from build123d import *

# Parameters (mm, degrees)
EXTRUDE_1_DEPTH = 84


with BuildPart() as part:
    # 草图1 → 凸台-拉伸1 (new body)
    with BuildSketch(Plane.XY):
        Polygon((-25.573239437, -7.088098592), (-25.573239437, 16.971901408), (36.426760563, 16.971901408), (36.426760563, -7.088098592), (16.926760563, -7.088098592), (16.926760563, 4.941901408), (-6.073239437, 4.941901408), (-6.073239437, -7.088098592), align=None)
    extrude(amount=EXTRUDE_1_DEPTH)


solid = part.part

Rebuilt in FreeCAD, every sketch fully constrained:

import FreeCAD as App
import Part
import Sketcher
from FreeCAD import Vector
Q = App.Units.Quantity

doc = App.newDocument("Part")
params = doc.addObject("Spreadsheet::Sheet", "Params")
for row, (alias, value) in enumerate([
    ("sketch1_width", "23 mm"),
    ("sketch1_width2", "62 mm"),
    ("sketch1_height", "24.06 mm"),
    ("sketch1_height2", "12.03 mm"),
    ("pad1_length", "84 mm"),
], start=1):
    params.set(f"A{row}", alias)
    params.set(f"B{row}", "=" + value)
    params.setAlias(f"B{row}", alias)

body = doc.addObject("PartDesign::Body", "Body")

sketch1 = doc.addObject("Sketcher::SketchObject", "Sketch")
body.addObject(sketch1)
sketch1.AttachmentSupport = (doc.XY_Plane, [""])
sketch1.MapMode = "FlatFace"
sketch1.addGeometry(Part.LineSegment(Vector(-26, 17, 0), Vector(-26, -7, 0)), False)
sketch1.addGeometry(Part.LineSegment(Vector(-26, -7, 0), Vector(-6, -7, 0)), False)
sketch1.addGeometry(Part.LineSegment(Vector(-6, -7, 0), Vector(-6, 5, 0)), False)
sketch1.addGeometry(Part.LineSegment(Vector(-6, 5, 0), Vector(17, 5, 0)), False)
sketch1.addGeometry(Part.LineSegment(Vector(17, 5, 0), Vector(17, -7, 0)), False)
sketch1.addGeometry(Part.LineSegment(Vector(17, -7, 0), Vector(36, -7, 0)), False)
sketch1.addGeometry(Part.LineSegment(Vector(36, -7, 0), Vector(36, 17, 0)), False)
sketch1.addGeometry(Part.LineSegment(Vector(36, 17, 0), Vector(-26, 17, 0)), False)
sketch1.addConstraint(Sketcher.Constraint("Coincident", 0, 2, 1, 1))
sketch1.addConstraint(Sketcher.Constraint("Coincident", 1, 2, 2, 1))
sketch1.addConstraint(Sketcher.Constraint("Coincident", 2, 2, 3, 1))
sketch1.addConstraint(Sketcher.Constraint("Coincident", 3, 2, 4, 1))
sketch1.addConstraint(Sketcher.Constraint("Coincident", 4, 2, 5, 1))
sketch1.addConstraint(Sketcher.Constraint("Coincident", 5, 2, 6, 1))
sketch1.addConstraint(Sketcher.Constraint("Coincident", 6, 2, 7, 1))
sketch1.addConstraint(Sketcher.Constraint("Coincident", 7, 2, 0, 1))
sketch1.addConstraint(Sketcher.Constraint("Vertical", 0))
sketch1.addConstraint(Sketcher.Constraint("Horizontal", 1))
sketch1.addConstraint(Sketcher.Constraint("Vertical", 2))
sketch1.addConstraint(Sketcher.Constraint("Horizontal", 3))
sketch1.addConstraint(Sketcher.Constraint("Vertical", 4))
sketch1.addConstraint(Sketcher.Constraint("Horizontal", 5))
sketch1.addConstraint(Sketcher.Constraint("Vertical", 6))
sketch1.addConstraint(Sketcher.Constraint("Horizontal", 7))
sketch1.addConstraint(Sketcher.Constraint("Horizontal", 1, 2, 4, 2))
sketch1.addConstraint(Sketcher.Constraint("Equal", 1, 5))
sketch1.addConstraint(Sketcher.Constraint("DistanceX", 3, 1, 3, 2, Q("23 mm")))
sketch1.addConstraint(Sketcher.Constraint("DistanceX", 7, 2, 7, 1, Q("62 mm")))
sketch1.addConstraint(Sketcher.Constraint("DistanceY", 0, 2, 0, 1, Q("24.06 mm")))
sketch1.addConstraint(Sketcher.Constraint("DistanceY", 2, 1, 2, 2, Q("12.03 mm")))
sketch1.addConstraint(Sketcher.Constraint("DistanceY", 0, 2, -1, 1, Q("7.088099 mm")))
sketch1.addConstraint(Sketcher.Constraint("DistanceX", 0, 2, -1, 1, Q("25.573239 mm")))
sketch1.setExpression("Constraints[18]", "Params.sketch1_width")
sketch1.setExpression("Constraints[19]", "Params.sketch1_width2")
sketch1.setExpression("Constraints[20]", "Params.sketch1_height")
sketch1.setExpression("Constraints[21]", "Params.sketch1_height2")
pad1 = doc.addObject("PartDesign::Pad", "Pad")
body.addObject(pad1)
pad1.Profile = sketch1
pad1.setExpression("Length", "Params.pad1_length")

doc.recompute()
